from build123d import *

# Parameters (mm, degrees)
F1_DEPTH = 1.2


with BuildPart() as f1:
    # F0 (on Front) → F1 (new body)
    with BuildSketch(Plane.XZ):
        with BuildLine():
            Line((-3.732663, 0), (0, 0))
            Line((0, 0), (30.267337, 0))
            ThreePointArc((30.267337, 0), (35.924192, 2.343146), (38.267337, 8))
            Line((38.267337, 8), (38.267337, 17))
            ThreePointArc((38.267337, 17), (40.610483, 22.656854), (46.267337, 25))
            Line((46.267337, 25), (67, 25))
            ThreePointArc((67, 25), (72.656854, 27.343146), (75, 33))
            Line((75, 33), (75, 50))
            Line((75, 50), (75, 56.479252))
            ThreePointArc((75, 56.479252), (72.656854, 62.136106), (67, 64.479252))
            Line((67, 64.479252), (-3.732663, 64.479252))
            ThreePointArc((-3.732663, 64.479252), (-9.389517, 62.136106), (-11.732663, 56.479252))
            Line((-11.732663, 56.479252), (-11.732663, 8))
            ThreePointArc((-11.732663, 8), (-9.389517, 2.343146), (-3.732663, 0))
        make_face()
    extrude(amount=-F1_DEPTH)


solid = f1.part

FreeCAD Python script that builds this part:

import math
import FreeCAD as App
import Part
import Sketcher
Q = App.Units.Quantity

doc = App.newDocument("Part")
body = doc.addObject("PartDesign::Body", "Body")

# Sketch on XZ plane
sketch1 = doc.addObject("Sketcher::SketchObject", "Sketch")
body.addObject(sketch1)
sketch1.AttachmentSupport = (doc.XZ_Plane, [""])
sketch1.MapMode = "FlatFace"
sketch1.addGeometry(Part.LineSegment(App.Vector(-3.732663, 0, 0), App.Vector(30.267337, 0, 0)), False)
sketch1.addGeometry(Part.ArcOfCircle(Part.Circle(App.Vector(30.267338, 7.999999, 0), App.Vector(0, 0, 1), 7.999999), math.radians(-90.000006), math.radians(0.000006)), False)
sketch1.addGeometry(Part.LineSegment(App.Vector(38.267337, 8, 0), App.Vector(38.267337, 17, 0)), False)
sketch1.addGeometry(Part.ArcOfCircle(Part.Circle(App.Vector(46.267338, 16.999999, 0), App.Vector(0, 0, 1), 8.000001), math.radians(90.000006), math.radians(179.999994)), False)
sketch1.addGeometry(Part.LineSegment(App.Vector(46.267337, 25, 0), App.Vector(67, 25, 0)), False)
sketch1.addGeometry(Part.ArcOfCircle(Part.Circle(App.Vector(66.999999, 33.000001, 0), App.Vector(0, 0, 1), 8.000001), math.radians(-89.999994), math.radians(-0.000006)), False)
sketch1.addGeometry(Part.LineSegment(App.Vector(75, 33, 0), App.Vector(75, 56.479252, 0)), False)
sketch1.addGeometry(Part.ArcOfCircle(Part.Circle(App.Vector(66.999999, 56.479251, 0), App.Vector(0, 0, 1), 8.000001), math.radians(0.000006), math.radians(89.999994)), False)
sketch1.addGeometry(Part.LineSegment(App.Vector(67, 64.479252, 0), App.Vector(-3.732663, 64.479252, 0)), False)
sketch1.addGeometry(Part.ArcOfCircle(Part.Circle(App.Vector(-3.732662, 56.479251, 0), App.Vector(0, 0, 1), 8.000001), math.radians(90.000006), math.radians(179.999994)), False)
sketch1.addGeometry(Part.LineSegment(App.Vector(-11.732663, 56.479252, 0), App.Vector(-11.732663, 8, 0)), False)
sketch1.addGeometry(Part.ArcOfCircle(Part.Circle(App.Vector(-3.732662, 8.000001, 0), App.Vector(0, 0, 1), 8.000001), math.radians(-179.999994), math.radians(-90.000006)), False)
sketch1.addConstraint(Sketcher.Constraint("Tangent", 0, 2, 1, 1))
sketch1.addConstraint(Sketcher.Constraint("Tangent", 1, 2, 2, 1))
sketch1.addConstraint(Sketcher.Constraint("Tangent", 2, 2, 3, 2))
sketch1.addConstraint(Sketcher.Constraint("Tangent", 3, 1, 4, 1))
sketch1.addConstraint(Sketcher.Constraint("Tangent", 4, 2, 5, 1))
sketch1.addConstraint(Sketcher.Constraint("Tangent", 5, 2, 6, 1))
sketch1.addConstraint(Sketcher.Constraint("Tangent", 6, 2, 7, 1))
sketch1.addConstraint(Sketcher.Constraint("Tangent", 7, 2, 8, 1))
sketch1.addConstraint(Sketcher.Constraint("Tangent", 8, 2, 9, 1))
sketch1.addConstraint(Sketcher.Constraint("Tangent", 9, 2, 10, 1))
sketch1.addConstraint(Sketcher.Constraint("Tangent", 10, 2, 11, 1))
sketch1.addConstraint(Sketcher.Constraint("Tangent", 11, 2, 0, 1))
sketch1.addConstraint(Sketcher.Constraint("Horizontal", 0))
sketch1.addConstraint(Sketcher.Constraint("Vertical", 2))
sketch1.addConstraint(Sketcher.Constraint("Horizontal", 4))
sketch1.addConstraint(Sketcher.Constraint("Vertical", 6))
sketch1.addConstraint(Sketcher.Constraint("Horizontal", 8))
sketch1.addConstraint(Sketcher.Constraint("Vertical", 10))
sketch1.addConstraint(Sketcher.Constraint("Equal", 1, 3))
sketch1.addConstraint(Sketcher.Constraint("Equal", 3, 5))
sketch1.addConstraint(Sketcher.Constraint("Equal", 5, 7))
sketch1.addConstraint(Sketcher.Constraint("Equal", 7, 9))
sketch1.addConstraint(Sketcher.Constraint("Equal", 9, 11))
sketch1.addConstraint(Sketcher.Constraint("PointOnObject", 0, 2, -1))
sketch1.addConstraint(Sketcher.Constraint("Radius", 1, Q("7.999999 mm")))
sketch1.addConstraint(Sketcher.Constraint("DistanceX", 0, 1, 0, 2, Q("34 mm")))
sketch1.addConstraint(Sketcher.Constraint("DistanceY", 2, 1, 2, 2, Q("9 mm")))
sketch1.addConstraint(Sketcher.Constraint("DistanceX", -1, 1, 5, 3, Q("66.999999 mm")))
sketch1.addConstraint(Sketcher.Constraint("DistanceX", 4, 1, 4, 2, Q("20.732663 mm")))
sketch1.addConstraint(Sketcher.Constraint("DistanceY", 6, 1, 6, 2, Q("23.479252 mm")))
pad1 = doc.addObject("PartDesign::Pad", "Pad")
body.addObject(pad1)
pad1.Profile = sketch1
pad1.Length = 1.2
pad1.Reversed = True

doc.recompute()
